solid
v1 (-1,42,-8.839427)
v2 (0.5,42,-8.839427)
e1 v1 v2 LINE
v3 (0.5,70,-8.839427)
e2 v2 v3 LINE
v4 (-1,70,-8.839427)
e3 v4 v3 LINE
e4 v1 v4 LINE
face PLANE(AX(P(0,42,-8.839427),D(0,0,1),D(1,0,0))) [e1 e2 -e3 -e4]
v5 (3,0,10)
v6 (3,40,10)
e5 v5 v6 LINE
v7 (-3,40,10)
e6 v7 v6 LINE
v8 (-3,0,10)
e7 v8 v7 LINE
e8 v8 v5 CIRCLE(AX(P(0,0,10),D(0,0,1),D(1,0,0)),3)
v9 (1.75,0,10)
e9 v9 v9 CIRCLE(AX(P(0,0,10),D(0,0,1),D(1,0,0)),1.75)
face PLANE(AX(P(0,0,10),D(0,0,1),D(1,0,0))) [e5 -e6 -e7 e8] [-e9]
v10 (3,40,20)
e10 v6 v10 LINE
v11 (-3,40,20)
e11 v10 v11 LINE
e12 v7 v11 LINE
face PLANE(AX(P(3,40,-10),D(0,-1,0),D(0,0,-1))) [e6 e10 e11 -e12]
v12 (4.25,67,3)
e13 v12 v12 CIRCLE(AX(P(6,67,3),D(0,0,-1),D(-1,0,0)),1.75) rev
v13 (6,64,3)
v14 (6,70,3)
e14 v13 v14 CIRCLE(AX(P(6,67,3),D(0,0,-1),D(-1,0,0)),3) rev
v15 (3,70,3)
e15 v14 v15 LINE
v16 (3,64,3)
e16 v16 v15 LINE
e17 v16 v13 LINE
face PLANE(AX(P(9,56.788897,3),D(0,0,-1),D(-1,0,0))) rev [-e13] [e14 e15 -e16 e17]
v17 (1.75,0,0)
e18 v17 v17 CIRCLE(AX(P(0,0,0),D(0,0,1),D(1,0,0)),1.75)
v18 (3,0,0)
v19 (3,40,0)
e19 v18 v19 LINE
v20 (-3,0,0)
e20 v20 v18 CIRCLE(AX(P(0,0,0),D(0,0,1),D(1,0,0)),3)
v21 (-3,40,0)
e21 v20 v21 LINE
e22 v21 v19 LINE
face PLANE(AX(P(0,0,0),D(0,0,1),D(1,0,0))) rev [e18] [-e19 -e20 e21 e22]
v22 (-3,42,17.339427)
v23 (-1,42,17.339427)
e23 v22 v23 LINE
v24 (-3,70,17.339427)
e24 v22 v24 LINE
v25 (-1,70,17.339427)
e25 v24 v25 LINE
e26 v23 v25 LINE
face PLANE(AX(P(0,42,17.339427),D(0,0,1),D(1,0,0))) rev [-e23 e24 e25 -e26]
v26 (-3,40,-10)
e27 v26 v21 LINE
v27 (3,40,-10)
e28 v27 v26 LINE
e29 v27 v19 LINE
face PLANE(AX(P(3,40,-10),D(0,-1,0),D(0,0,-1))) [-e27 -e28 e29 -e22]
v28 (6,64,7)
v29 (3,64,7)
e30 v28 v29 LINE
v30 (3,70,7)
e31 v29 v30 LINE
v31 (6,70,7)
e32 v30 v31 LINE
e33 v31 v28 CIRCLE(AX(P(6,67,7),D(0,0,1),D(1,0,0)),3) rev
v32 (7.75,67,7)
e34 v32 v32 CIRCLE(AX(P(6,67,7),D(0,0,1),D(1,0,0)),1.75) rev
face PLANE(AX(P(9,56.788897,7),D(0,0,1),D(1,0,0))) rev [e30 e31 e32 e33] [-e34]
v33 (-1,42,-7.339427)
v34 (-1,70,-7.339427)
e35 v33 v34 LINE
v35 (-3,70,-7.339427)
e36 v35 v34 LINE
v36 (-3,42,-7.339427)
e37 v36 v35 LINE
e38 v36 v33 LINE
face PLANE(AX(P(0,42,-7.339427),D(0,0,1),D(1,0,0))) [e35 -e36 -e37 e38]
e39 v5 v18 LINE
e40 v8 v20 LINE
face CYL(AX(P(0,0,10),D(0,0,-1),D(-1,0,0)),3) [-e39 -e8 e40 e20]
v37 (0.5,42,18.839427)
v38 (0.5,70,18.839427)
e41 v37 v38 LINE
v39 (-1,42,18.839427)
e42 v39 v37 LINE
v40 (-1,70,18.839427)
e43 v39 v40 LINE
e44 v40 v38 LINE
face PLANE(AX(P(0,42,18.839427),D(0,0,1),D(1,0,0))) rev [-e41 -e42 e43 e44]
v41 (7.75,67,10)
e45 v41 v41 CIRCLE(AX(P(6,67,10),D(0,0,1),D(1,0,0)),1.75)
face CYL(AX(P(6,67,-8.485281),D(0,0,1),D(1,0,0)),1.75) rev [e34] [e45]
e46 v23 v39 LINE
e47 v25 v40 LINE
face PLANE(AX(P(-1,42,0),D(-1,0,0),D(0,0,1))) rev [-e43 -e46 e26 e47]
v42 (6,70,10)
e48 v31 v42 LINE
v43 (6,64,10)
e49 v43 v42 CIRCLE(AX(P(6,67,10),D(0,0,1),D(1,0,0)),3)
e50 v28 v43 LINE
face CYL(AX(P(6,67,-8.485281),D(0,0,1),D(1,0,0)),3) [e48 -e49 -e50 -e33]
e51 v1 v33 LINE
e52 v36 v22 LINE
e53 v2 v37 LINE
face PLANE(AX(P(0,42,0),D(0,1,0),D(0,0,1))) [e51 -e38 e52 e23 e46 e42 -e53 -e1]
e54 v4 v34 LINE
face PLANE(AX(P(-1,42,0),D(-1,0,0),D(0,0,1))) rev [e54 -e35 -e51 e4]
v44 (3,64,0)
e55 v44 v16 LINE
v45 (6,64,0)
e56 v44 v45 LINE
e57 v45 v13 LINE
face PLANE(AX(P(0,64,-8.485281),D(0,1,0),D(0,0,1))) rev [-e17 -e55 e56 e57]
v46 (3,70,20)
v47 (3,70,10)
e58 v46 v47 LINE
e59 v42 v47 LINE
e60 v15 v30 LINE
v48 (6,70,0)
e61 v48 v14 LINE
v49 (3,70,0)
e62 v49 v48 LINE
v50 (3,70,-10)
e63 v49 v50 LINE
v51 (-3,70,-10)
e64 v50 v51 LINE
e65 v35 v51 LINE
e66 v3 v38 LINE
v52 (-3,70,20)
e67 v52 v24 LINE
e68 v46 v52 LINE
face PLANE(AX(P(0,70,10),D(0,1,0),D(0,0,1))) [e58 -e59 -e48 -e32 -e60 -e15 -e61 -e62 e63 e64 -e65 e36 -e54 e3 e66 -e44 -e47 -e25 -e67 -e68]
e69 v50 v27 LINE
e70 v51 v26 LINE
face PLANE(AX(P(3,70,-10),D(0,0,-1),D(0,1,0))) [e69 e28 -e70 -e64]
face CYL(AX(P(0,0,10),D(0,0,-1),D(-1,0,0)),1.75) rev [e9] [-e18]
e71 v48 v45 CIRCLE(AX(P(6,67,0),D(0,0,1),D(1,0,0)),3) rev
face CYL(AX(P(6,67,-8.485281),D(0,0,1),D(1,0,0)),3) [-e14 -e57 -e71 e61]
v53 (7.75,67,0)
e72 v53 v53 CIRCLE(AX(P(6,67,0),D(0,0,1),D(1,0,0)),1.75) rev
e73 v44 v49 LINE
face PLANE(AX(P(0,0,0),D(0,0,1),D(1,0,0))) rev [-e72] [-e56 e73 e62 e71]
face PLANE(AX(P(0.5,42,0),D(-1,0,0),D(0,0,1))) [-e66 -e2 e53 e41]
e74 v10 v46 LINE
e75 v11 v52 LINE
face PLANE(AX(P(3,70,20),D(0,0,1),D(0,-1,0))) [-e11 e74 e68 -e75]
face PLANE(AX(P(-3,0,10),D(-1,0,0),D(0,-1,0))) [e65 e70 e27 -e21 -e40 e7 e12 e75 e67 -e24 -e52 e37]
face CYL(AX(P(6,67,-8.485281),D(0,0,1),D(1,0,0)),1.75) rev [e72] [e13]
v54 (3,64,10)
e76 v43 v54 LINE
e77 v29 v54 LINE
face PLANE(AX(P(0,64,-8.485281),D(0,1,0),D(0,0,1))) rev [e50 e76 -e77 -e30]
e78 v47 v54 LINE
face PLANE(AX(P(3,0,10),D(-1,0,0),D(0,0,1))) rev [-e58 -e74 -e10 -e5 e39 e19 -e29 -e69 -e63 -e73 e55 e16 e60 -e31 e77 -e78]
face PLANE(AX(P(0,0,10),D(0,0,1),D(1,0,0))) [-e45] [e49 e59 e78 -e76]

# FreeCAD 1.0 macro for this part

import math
import FreeCAD as App
import Part
import Sketcher

V = App.Vector


def add_polygon(sketch, points):
    """Adds a closed chain of lines whose ends are joined by coincident constraints."""
    first, n = sketch.GeometryCount, len(points)
    for a, b in zip(points, points[1:] + points[:1]):
        sketch.addGeometry(Part.LineSegment(App.Vector(*a, 0), App.Vector(*b, 0)), False)
    for i in range(n):
        sketch.addConstraint(Sketcher.Constraint("Coincident", first + i, 2, first + (i + 1) % n, 1))

doc = App.newDocument("Part")
params = doc.addObject("Spreadsheet::Sheet", "Params")
for row, (alias, value) in enumerate([
    ("sketch1_radius", "3 mm"),
    ("sketch1_diameter", "3.5 mm"),
    ("sketch1_height", "70 mm"),
    ("pad1_length", "10 mm"),
    ("sketch2_width", "30 mm"),
    ("pad2_length", "6 mm"),
    ("sketch3_width", "2 mm"),
    ("sketch3_width2", "1.5 mm"),
    ("pocket1_length", "28 mm"),
    ("sketch4_radius", "3 mm"),
    ("sketch4_width", "3 mm"),
    ("sketch4_radius2", "1.75 mm"),
    ("pad3_length", "10 mm"),
    ("sketch5_width", "6 mm"),
    ("sketch5_height", "4 mm"),
    ("pocket2_length", "6 mm"),
], start=1):
    params.set(f"A{row}", alias)
    params.set(f"B{row}", "=" + value)
    params.setAlias(f"B{row}", alias)

body = doc.addObject("PartDesign::Body", "Body")

sketch1 = body.newObject("Sketcher::SketchObject", "Sketch")
sketch1.AttachmentSupport = (doc.getObject("XY_Plane"), [""])
sketch1.MapMode = "FlatFace"
sketch1.addGeometry(Part.ArcOfCircle(Part.Circle(V(0, 0, 0), V(0, 0, 1), 3), math.radians(180), math.radians(360)), False)
sketch1.addGeometry(Part.LineSegment(V(3, 0, 0), V(3, 70, 0)), False)
sketch1.addGeometry(Part.LineSegment(V(3, 70, 0), V(-3, 70, 0)), False)
sketch1.addGeometry(Part.LineSegment(V(-3, 70, 0), V(-3, 0, 0)), False)
sketch1.addGeometry(Part.Circle(V(0, 0, 0), V(0, 0, 1), 1.75), False)
sketch1.addConstraint(Sketcher.Constraint("Tangent", 0, 2, 1, 1))
sketch1.addConstraint(Sketcher.Constraint("Coincident", 1, 2, 2, 1))
sketch1.addConstraint(Sketcher.Constraint("Coincident", 2, 2, 3, 1))
sketch1.addConstraint(Sketcher.Constraint("Tangent", 3, 2, 0, 1))
sketch1.addConstraint(Sketcher.Constraint("Vertical", 1))
sketch1.addConstraint(Sketcher.Constraint("Horizontal", 2))
sketch1.addConstraint(Sketcher.Constraint("Vertical", 3))
sketch1.addConstraint(Sketcher.Constraint("Coincident", 0, 3, -1, 1))
sketch1.addConstraint(Sketcher.Constraint("Coincident", 4, 3, -1, 1))
sketch1.addConstraint(Sketcher.Constraint("Radius", 0, 3.0))
sketch1.addConstraint(Sketcher.Constraint("Diameter", 4, 3.5))
sketch1.addConstraint(Sketcher.Constraint("DistanceY", 1, 1, 1, 2, 70.0))
sketch1.setExpression("Constraints[9]", "Params.sketch1_radius")
sketch1.setExpression("Constraints[10]", "Params.sketch1_diameter")
sketch1.setExpression("Constraints[11]", "Params.sketch1_height")
pad1 = body.newObject("PartDesign::Pad", "Pad")
pad1.Profile = sketch1
pad1.setExpression("Length", "Params.pad1_length")

sketch2 = body.newObject("Sketcher::SketchObject", "Sketch001")
sketch2.AttachmentSupport = (doc.getObject("YZ_Plane"), [""])
sketch2.MapMode = "FlatFace"
sketch2.AttachmentOffset = App.Placement(V(0, 0, -3), App.Rotation())
add_polygon(sketch2, [(70, -10), (40, -10), (40, 20), (70, 20)])
sketch2.addConstraint(Sketcher.Constraint("Horizontal", 0))
sketch2.addConstraint(Sketcher.Constraint("Vertical", 1))
sketch2.addConstraint(Sketcher.Constraint("Horizontal", 2))
sketch2.addConstraint(Sketcher.Constraint("Vertical", 3))
sketch2.addConstraint(Sketcher.Constraint("Equal", 2, 1))
sketch2.addConstraint(Sketcher.Constraint("DistanceX", 0, 2, 0, 1, 30.0))
sketch2.addConstraint(Sketcher.Constraint("DistanceX", -1, 1, 0, 2, 40.0))
sketch2.addConstraint(Sketcher.Constraint("DistanceY", 0, 2, -1, 1, 10.0))
sketch2.setExpression("Constraints[9]", "Params.sketch2_width")
pad2 = body.newObject("PartDesign::Pad", "Pad001")
pad2.Profile = sketch2
pad2.setExpression("Length", "Params.pad2_length")

sketch3 = body.newObject("Sketcher::SketchObject", "Sketch002")
sketch3.AttachmentSupport = (doc.getObject("XZ_Plane"), [""])
sketch3.MapMode = "FlatFace"
sketch3.AttachmentOffset = App.Placement(V(0, 0, -70), App.Rotation())
add_polygon(sketch3, [(-3, -7.339427), (-3, 17.339427), (-1, 17.339427), (-1, 18.839427), (0.5, 18.839427), (0.5, -8.839427), (-1, -8.839427), (-1, -7.339427)])
sketch3.addConstraint(Sketcher.Constraint("Vertical", 0))
sketch3.addConstraint(Sketcher.Constraint("Horizontal", 1))
sketch3.addConstraint(Sketcher.Constraint("Vertical", 2))
sketch3.addConstraint(Sketcher.Constraint("Horizontal", 3))
sketch3.addConstraint(Sketcher.Constraint("Vertical", 4))
sketch3.addConstraint(Sketcher.Constraint("Horizontal", 5))
sketch3.addConstraint(Sketcher.Constraint("Vertical", 6))
sketch3.addConstraint(Sketcher.Constraint("Horizontal", 7))
sketch3.addConstraint(Sketcher.Constraint("Vertical", 2, 2, 5, 2))
sketch3.addConstraint(Sketcher.Constraint("Equal", 5, 2))
sketch3.addConstraint(Sketcher.Constraint("Equal", 2, 6))
sketch3.addConstraint(Sketcher.Constraint("DistanceX", 1, 1, 1, 2, 2.0))
sketch3.addConstraint(Sketcher.Constraint("DistanceX", 3, 1, 3, 2, 1.5))
sketch3.addConstraint(Sketcher.Constraint("DistanceX", 0, 2, -1, 1, 3.0))
sketch3.addConstraint(Sketcher.Constraint("DistanceY", 0, 1, 0, 2, 24.678854))
sketch3.addConstraint(Sketcher.Constraint("DistanceY", -1, 1, 0, 2, 17.339427))
sketch3.setExpression("Constraints[19]", "Params.sketch3_width")
sketch3.setExpression("Constraints[20]", "Params.sketch3_width2")
pocket1 = body.newObject("PartDesign::Pocket", "Pocket")
pocket1.Profile = sketch3
pocket1.setExpression("Length", "Params.pocket1_length")
pocket1.Reversed = True

sketch4 = body.newObject("Sketcher::SketchObject", "Sketch003")
sketch4.AttachmentSupport = (doc.getObject("XY_Plane"), [""])
sketch4.MapMode = "FlatFace"
sketch4.AttachmentOffset = App.Placement(V(0, 0, 10), App.Rotation())
sketch4.addGeometry(Part.ArcOfCircle(Part.Circle(V(6, 67, 0), V(0, 0, 1), 3), math.radians(0), math.radians(90)), False)
sketch4.addGeometry(Part.LineSegment(V(6, 70, 0), V(3, 70, 0)), False)
sketch4.addGeometry(Part.LineSegment(V(3, 70, 0), V(3, 64, 0)), False)
sketch4.addGeometry(Part.LineSegment(V(3, 64, 0), V(6, 64, 0)), False)
sketch4.addGeometry(Part.ArcOfCircle(Part.Circle(V(6, 67, 0), V(0, 0, 1), 3), math.radians(-90), math.radians(0)), False)
sketch4.addGeometry(Part.ArcOfCircle(Part.Circle(V(6, 67, 0), V(0, 0, 1), 1.75), math.radians(-90), math.radians(0)), False)
sketch4.addGeometry(Part.ArcOfCircle(Part.Circle(V(6, 67, 0), V(0, 0, 1), 1.75), math.radians(90), math.radians(270)), False)
sketch4.addGeometry(Part.ArcOfCircle(Part.Circle(V(6, 67, 0), V(0, 0, 1), 1.75), math.radians(0), math.radians(90)), False)
sketch4.addConstraint(Sketcher.Constraint("Tangent", 0, 2, 1, 1))
sketch4.addConstraint(Sketcher.Constraint("Coincident", 1, 2, 2, 1))
sketch4.addConstraint(Sketcher.Constraint("Coincident", 2, 2, 3, 1))
sketch4.addConstraint(Sketcher.Constraint("Tangent", 3, 2, 4, 1))
sketch4.addConstraint(Sketcher.Constraint("Tangent", 4, 2, 0, 1))
sketch4.addConstraint(Sketcher.Constraint("Tangent", 5, 1, 6, 2))
sketch4.addConstraint(Sketcher.Constraint("Tangent", 6, 1, 7, 2))
sketch4.addConstraint(Sketcher.Constraint("Tangent", 7, 1, 5, 2))
sketch4.addConstraint(Sketcher.Constraint("Horizontal", 1))
sketch4.addConstraint(Sketcher.Constraint("Vertical", 2))
sketch4.addConstraint(Sketcher.Constraint("Horizontal", 3))
sketch4.addConstraint(Sketcher.Constraint("Coincident", 5, 3, 0, 3))
sketch4.addConstraint(Sketcher.Constraint("Equal", 0, 4))
sketch4.addConstraint(Sketcher.Constraint("Horizontal", 7, 3, 4, 2))
sketch4.addConstraint(Sketcher.Constraint("Horizontal", 4, 2, 7, 1))
sketch4.addConstraint(Sketcher.Constraint("Vertical", 3, 2, 5, 1))
sketch4.addConstraint(Sketcher.Constraint("Vertical", 5, 1, 6, 1))
sketch4.addConstraint(Sketcher.Constraint("Radius", 0, 3.0))
sketch4.addConstraint(Sketcher.Constraint("DistanceX", 1, 2, 1, 1, 3.0))
sketch4.addConstraint(Sketcher.Constraint("Radius", 5, 1.75))
sketch4.addConstraint(Sketcher.Constraint("DistanceX", -1, 1, 0, 3, 6.0))
sketch4.addConstraint(Sketcher.Constraint("DistanceY", -1, 1, 0, 3, 67.0))
sketch4.setExpression("Constraints[17]", "Params.sketch4_radius")
sketch4.setExpression("Constraints[18]", "Params.sketch4_width")
sketch4.setExpression("Constraints[19]", "Params.sketch4_radius2")
pad3 = body.newObject("PartDesign::Pad", "Pad002")
pad3.Profile = sketch4
pad3.setExpression("Length", "Params.pad3_length")
pad3.Reversed = True

sketch5 = body.newObject("Sketcher::SketchObject", "Sketch004")
sketch5.AttachmentSupport = (doc.getObject("XZ_Plane"), [""])
sketch5.MapMode = "FlatFace"
sketch5.AttachmentOffset = App.Placement(V(0, 0, -70), App.Rotation())
add_polygon(sketch5, [(3, 3), (3, 7), (9, 7), (9, 3)])
sketch5.addConstraint(Sketcher.Constraint("Vertical", 0))
sketch5.addConstraint(Sketcher.Constraint("Horizontal", 1))
sketch5.addConstraint(Sketcher.Constraint("Vertical", 2))
sketch5.addConstraint(Sketcher.Constraint("Horizontal", 3))
sketch5.addConstraint(Sketcher.Constraint("DistanceX", 1, 1, 1, 2, 6.0))
sketch5.addConstraint(Sketcher.Constraint("DistanceY", 0, 1, 0, 2, 4.0))
sketch5.addConstraint(Sketcher.Constraint("DistanceX", -1, 1, 0, 2, 3.0))
sketch5.addConstraint(Sketcher.Constraint("DistanceY", -1, 1, 0, 2, 7.0))
sketch5.setExpression("Constraints[8]", "Params.sketch5_width")
sketch5.setExpression("Constraints[9]", "Params.sketch5_height")
pocket2 = body.newObject("PartDesign::Pocket", "Pocket001")
pocket2.Profile = sketch5
pocket2.setExpression("Length", "Params.pocket2_length")
pocket2.Reversed = True

doc.recompute()
